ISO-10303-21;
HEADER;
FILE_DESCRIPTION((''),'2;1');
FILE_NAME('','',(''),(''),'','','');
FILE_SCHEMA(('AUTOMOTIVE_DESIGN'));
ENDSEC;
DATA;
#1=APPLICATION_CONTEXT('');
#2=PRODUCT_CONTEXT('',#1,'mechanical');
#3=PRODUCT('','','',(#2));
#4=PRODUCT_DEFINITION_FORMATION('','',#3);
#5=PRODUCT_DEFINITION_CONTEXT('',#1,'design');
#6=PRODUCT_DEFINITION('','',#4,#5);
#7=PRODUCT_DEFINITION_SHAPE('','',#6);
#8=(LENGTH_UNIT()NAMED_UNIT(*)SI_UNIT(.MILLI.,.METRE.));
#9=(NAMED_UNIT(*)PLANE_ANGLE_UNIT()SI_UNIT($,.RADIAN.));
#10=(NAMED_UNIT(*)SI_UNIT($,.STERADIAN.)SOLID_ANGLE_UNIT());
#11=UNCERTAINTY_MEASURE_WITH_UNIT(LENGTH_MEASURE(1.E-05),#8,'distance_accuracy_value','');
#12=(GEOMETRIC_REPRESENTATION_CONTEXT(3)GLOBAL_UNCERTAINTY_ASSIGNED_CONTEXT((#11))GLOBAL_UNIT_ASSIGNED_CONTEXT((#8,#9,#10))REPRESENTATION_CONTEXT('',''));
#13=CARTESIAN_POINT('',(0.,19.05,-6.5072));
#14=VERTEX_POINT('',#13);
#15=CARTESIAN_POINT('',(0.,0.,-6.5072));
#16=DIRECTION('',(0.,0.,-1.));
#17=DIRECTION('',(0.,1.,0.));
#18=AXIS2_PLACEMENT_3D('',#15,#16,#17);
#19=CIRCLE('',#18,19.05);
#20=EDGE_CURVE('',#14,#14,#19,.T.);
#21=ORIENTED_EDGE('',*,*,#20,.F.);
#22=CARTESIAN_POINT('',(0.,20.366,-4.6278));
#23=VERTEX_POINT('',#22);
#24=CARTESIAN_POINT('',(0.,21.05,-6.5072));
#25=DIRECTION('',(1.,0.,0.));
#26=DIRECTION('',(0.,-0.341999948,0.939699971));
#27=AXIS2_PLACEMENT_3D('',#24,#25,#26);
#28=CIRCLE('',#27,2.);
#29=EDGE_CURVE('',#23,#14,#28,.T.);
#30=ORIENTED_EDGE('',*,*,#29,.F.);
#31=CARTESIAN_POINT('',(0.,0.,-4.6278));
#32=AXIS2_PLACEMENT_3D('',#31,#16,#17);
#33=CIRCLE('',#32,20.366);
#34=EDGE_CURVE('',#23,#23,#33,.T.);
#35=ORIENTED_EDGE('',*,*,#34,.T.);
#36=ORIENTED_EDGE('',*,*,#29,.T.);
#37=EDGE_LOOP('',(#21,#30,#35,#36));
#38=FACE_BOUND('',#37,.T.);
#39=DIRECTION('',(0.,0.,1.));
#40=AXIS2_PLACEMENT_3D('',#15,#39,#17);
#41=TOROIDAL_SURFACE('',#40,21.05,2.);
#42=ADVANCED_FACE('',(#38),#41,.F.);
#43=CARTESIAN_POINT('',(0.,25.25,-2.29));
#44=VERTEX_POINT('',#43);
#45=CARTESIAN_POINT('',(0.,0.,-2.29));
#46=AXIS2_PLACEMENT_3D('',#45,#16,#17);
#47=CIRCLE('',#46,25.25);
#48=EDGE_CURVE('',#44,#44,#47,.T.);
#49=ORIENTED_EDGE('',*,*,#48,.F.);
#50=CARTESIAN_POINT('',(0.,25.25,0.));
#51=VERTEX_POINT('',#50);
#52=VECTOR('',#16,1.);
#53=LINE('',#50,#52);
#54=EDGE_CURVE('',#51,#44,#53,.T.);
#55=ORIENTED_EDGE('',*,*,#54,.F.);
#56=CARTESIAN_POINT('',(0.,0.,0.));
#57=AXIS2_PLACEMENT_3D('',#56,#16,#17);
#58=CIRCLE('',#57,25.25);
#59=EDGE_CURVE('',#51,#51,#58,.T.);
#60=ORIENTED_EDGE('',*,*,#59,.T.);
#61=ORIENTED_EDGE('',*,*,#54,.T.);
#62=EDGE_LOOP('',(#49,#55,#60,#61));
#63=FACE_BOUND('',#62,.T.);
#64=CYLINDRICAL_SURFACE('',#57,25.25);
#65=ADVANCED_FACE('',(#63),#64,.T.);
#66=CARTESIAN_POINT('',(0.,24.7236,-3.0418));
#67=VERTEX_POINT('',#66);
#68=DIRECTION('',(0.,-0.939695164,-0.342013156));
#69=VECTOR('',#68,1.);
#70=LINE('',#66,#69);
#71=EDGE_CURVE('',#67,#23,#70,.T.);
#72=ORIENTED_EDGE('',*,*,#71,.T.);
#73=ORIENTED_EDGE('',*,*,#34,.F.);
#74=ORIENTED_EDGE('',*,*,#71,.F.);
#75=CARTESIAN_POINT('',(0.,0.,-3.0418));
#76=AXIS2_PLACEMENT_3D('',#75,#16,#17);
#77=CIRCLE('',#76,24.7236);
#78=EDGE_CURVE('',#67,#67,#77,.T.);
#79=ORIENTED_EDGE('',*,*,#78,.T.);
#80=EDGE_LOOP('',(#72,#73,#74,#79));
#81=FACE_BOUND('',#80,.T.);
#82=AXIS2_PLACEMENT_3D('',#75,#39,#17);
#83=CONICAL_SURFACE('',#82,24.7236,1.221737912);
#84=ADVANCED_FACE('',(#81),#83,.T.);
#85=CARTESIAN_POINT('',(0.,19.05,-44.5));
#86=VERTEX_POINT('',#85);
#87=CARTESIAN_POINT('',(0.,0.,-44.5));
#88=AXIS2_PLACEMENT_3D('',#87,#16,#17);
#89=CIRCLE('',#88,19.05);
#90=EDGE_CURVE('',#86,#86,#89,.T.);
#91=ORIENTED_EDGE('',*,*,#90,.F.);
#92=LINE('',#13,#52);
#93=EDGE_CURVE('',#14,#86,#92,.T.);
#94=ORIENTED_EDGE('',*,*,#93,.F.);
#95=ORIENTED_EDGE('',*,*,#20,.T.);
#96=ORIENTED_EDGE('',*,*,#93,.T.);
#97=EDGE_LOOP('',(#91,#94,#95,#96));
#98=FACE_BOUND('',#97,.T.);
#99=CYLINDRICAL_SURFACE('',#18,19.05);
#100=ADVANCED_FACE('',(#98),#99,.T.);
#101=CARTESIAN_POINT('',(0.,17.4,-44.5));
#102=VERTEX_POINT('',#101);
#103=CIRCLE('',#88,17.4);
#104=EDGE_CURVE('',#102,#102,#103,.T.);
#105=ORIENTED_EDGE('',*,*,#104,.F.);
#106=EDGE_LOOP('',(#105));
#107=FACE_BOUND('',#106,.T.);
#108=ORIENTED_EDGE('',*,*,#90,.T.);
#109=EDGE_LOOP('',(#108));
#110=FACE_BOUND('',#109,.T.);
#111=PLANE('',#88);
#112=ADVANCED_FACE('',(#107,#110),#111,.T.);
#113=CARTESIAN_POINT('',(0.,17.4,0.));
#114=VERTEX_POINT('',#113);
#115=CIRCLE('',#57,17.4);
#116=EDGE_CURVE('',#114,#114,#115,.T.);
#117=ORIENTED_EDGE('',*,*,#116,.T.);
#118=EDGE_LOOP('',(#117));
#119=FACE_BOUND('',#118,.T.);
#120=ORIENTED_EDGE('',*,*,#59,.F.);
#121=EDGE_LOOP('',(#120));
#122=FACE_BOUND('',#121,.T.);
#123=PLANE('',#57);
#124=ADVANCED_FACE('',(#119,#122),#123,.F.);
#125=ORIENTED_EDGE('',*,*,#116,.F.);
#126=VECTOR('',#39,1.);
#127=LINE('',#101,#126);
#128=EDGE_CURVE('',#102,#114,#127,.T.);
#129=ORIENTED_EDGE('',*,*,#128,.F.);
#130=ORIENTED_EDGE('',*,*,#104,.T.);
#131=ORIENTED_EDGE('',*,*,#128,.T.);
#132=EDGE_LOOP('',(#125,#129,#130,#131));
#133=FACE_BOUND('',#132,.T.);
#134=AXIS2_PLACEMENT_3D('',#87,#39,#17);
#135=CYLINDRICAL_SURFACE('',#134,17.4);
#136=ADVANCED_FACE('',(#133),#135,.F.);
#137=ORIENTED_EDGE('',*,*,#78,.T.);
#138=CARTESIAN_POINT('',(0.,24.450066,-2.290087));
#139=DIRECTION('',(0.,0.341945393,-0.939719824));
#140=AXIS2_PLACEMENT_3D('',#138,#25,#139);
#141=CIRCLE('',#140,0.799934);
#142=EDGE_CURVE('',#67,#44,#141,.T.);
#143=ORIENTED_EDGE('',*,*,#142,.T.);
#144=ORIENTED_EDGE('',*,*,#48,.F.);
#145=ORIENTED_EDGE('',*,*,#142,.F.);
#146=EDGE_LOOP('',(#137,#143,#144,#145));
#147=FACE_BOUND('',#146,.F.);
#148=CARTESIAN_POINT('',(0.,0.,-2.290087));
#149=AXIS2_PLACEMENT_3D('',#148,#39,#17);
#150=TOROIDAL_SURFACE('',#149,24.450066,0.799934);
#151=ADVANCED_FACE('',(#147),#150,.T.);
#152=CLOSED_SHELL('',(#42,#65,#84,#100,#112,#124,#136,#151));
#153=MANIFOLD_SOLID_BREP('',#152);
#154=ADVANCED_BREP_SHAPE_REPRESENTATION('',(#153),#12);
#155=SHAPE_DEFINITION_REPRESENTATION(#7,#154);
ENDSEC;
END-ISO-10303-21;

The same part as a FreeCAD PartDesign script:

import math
import FreeCAD as App
import Part
import Sketcher

V = App.Vector
Q = App.Units.Quantity

doc = App.newDocument("Part")
params = doc.addObject("Spreadsheet::Sheet", "Params")
for row, (alias, value) in enumerate([
    ("sketch1_radius", "2 mm"),
    ("sketch1_radius2", "0.8 mm"),
    ("sketch1_height", "44.5 mm"),
    ("sketch1_width", "1.65 mm"),
    ("sketch1_height2", "2.29 mm"),
    ("revolution_angle", "360 deg"),
], start=1):
    params.set(f"A{row}", alias)
    params.set(f"B{row}", "=" + value)
    params.setAlias(f"B{row}", alias)

body = doc.addObject("PartDesign::Body", "Body")

sketch1 = body.newObject("Sketcher::SketchObject", "Sketch")
sketch1.AttachmentSupport = (doc.getObject("YZ_Plane"), [""])
sketch1.MapMode = "FlatFace"
sketch1.addGeometry([
    Part.LineSegment(V(17.4, 0, 0), V(17.4, -44.5, 0)),
    Part.LineSegment(V(17.4, -44.5, 0), V(19.1, -44.5, 0)),
    Part.LineSegment(V(19.1, -44.5, 0), V(19.1, -6.5, 0)),
    Part.ArcOfCircle(Part.Circle(V(21.1, -6.5, 0), V(0, 0, 1), 2), math.radians(110), math.radians(180)),
    Part.LineSegment(V(20.4, -4.6, 0), V(24.7, -3, 0)),
    Part.ArcOfCircle(Part.Circle(V(24.4, -2.3, 0), V(0, 0, 1), 0.8), math.radians(-70), math.radians(0)),
    Part.LineSegment(V(25.2, -2.3, 0), V(25.2, 0, 0)),
    Part.LineSegment(V(25.2, 0, 0), V(17.4, 0, 0)),
], False)
sketch1.addConstraint([
    Sketcher.Constraint("Coincident", 0, 2, 1, 1),
    Sketcher.Constraint("Coincident", 1, 2, 2, 1),
    Sketcher.Constraint("Tangent", 2, 2, 3, 2),
    Sketcher.Constraint("Tangent", 3, 1, 4, 1),
    Sketcher.Constraint("Tangent", 4, 2, 5, 1),
    Sketcher.Constraint("Tangent", 5, 2, 6, 1),
    Sketcher.Constraint("Coincident", 6, 2, 7, 1),
    Sketcher.Constraint("Coincident", 7, 2, 0, 1),
    Sketcher.Constraint("Vertical", 0),
    Sketcher.Constraint("Horizontal", 1),
    Sketcher.Constraint("Vertical", 2),
    Sketcher.Constraint("Vertical", 6),
    Sketcher.Constraint("Horizontal", 7),
    Sketcher.Constraint("PointOnObject", 6, 2, -1),
    Sketcher.Constraint("Radius", 3, Q("2 mm")),
    Sketcher.Constraint("Radius", 5, Q("0.8 mm")),
    Sketcher.Constraint("Angle", 4, Q("19.9996 deg")),
    Sketcher.Constraint("DistanceY", 0, 2, 0, 1, Q("44.5 mm")),
    Sketcher.Constraint("DistanceX", 1, 1, 1, 2, Q("1.65 mm")),
    Sketcher.Constraint("DistanceY", 6, 1, 6, 2, Q("2.29 mm")),
    Sketcher.Constraint("DistanceX", 7, 2, 7, 1, Q("7.85 mm")),
    Sketcher.Constraint("DistanceX", -1, 1, 0, 2, Q("17.4 mm")),
])
sketch1.setExpression("Constraints[14]", "Params.sketch1_radius")
sketch1.setExpression("Constraints[15]", "Params.sketch1_radius2")
sketch1.setExpression("Constraints[17]", "Params.sketch1_height")
sketch1.setExpression("Constraints[18]", "Params.sketch1_width")
sketch1.setExpression("Constraints[19]", "Params.sketch1_height2")
revolution = body.newObject("PartDesign::Revolution", "Revolution")
revolution.Profile = sketch1
revolution.ReferenceAxis = (sketch1, ["V_Axis"])
revolution.setExpression("Angle", "Params.revolution_angle")

doc.recompute()
